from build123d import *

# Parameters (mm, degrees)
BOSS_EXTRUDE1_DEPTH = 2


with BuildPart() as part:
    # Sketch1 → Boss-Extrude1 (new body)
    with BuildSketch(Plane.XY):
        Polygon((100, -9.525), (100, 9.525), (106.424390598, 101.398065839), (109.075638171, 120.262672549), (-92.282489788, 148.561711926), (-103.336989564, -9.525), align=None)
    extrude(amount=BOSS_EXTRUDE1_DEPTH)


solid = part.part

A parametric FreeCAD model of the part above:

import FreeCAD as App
import Part
import Sketcher
Q = App.Units.Quantity

doc = App.newDocument("Part")
body = doc.addObject("PartDesign::Body", "Body")

# Sketch on XY plane
sketch1 = doc.addObject("Sketcher::SketchObject", "Sketch")
body.addObject(sketch1)
sketch1.AttachmentSupport = (doc.XY_Plane, [""])
sketch1.MapMode = "FlatFace"
sketch1.addGeometry([
    Part.LineSegment(App.Vector(100, -9.525, 0), App.Vector(100, 9.525, 0)),  # 0
    Part.LineSegment(App.Vector(100, 9.525, 0), App.Vector(106.424391, 101.398066, 0)),  # 1
    Part.LineSegment(App.Vector(106.424391, 101.398066, 0), App.Vector(109.075638, 120.262673, 0)),  # 2
    Part.LineSegment(App.Vector(109.075638, 120.262673, 0), App.Vector(-92.28249, 148.561712, 0)),  # 3
    Part.LineSegment(App.Vector(-92.28249, 148.561712, 0), App.Vector(-103.33699, -9.525, 0)),  # 4
    Part.LineSegment(App.Vector(-103.33699, -9.525, 0), App.Vector(100, -9.525, 0)),  # 5
], False)
sketch1.addConstraint([
    Sketcher.Constraint("Coincident", 0, 2, 1, 1),
    Sketcher.Constraint("Coincident", 1, 2, 2, 1),
    Sketcher.Constraint("Coincident", 2, 2, 3, 1),
    Sketcher.Constraint("Coincident", 3, 2, 4, 1),
    Sketcher.Constraint("Coincident", 4, 2, 5, 1),
    Sketcher.Constraint("Coincident", 5, 2, 0, 1),
    Sketcher.Constraint("Vertical", 0),
    Sketcher.Constraint("Horizontal", 5),
    Sketcher.Constraint("Perpendicular", 2, 3),
    Sketcher.Constraint("Parallel", 1, 4),
    Sketcher.Constraint("Angle", 1, Q("86 deg")),
    Sketcher.Constraint("Angle", 2, Q("82 deg")),
    Sketcher.Constraint("DistanceX", -1, 1, 0, 2, Q("100 mm")),
    Sketcher.Constraint("DistanceY", 0, 1, 0, 2, Q("19.05 mm")),
    Sketcher.Constraint("Distance", 2, Q("19.05 mm")),
    Sketcher.Constraint("DistanceY", -1, 1, 0, 2, Q("9.525 mm")),
    Sketcher.Constraint("DistanceX", 5, 1, 5, 2, Q("203.33699 mm")),
    Sketcher.Constraint("DistanceX", 4, 2, 3, 2, Q("11.0545 mm")),
])
pad1 = doc.addObject("PartDesign::Pad", "Pad")
body.addObject(pad1)
pad1.Profile = sketch1
pad1.Length = 2

doc.recompute()
